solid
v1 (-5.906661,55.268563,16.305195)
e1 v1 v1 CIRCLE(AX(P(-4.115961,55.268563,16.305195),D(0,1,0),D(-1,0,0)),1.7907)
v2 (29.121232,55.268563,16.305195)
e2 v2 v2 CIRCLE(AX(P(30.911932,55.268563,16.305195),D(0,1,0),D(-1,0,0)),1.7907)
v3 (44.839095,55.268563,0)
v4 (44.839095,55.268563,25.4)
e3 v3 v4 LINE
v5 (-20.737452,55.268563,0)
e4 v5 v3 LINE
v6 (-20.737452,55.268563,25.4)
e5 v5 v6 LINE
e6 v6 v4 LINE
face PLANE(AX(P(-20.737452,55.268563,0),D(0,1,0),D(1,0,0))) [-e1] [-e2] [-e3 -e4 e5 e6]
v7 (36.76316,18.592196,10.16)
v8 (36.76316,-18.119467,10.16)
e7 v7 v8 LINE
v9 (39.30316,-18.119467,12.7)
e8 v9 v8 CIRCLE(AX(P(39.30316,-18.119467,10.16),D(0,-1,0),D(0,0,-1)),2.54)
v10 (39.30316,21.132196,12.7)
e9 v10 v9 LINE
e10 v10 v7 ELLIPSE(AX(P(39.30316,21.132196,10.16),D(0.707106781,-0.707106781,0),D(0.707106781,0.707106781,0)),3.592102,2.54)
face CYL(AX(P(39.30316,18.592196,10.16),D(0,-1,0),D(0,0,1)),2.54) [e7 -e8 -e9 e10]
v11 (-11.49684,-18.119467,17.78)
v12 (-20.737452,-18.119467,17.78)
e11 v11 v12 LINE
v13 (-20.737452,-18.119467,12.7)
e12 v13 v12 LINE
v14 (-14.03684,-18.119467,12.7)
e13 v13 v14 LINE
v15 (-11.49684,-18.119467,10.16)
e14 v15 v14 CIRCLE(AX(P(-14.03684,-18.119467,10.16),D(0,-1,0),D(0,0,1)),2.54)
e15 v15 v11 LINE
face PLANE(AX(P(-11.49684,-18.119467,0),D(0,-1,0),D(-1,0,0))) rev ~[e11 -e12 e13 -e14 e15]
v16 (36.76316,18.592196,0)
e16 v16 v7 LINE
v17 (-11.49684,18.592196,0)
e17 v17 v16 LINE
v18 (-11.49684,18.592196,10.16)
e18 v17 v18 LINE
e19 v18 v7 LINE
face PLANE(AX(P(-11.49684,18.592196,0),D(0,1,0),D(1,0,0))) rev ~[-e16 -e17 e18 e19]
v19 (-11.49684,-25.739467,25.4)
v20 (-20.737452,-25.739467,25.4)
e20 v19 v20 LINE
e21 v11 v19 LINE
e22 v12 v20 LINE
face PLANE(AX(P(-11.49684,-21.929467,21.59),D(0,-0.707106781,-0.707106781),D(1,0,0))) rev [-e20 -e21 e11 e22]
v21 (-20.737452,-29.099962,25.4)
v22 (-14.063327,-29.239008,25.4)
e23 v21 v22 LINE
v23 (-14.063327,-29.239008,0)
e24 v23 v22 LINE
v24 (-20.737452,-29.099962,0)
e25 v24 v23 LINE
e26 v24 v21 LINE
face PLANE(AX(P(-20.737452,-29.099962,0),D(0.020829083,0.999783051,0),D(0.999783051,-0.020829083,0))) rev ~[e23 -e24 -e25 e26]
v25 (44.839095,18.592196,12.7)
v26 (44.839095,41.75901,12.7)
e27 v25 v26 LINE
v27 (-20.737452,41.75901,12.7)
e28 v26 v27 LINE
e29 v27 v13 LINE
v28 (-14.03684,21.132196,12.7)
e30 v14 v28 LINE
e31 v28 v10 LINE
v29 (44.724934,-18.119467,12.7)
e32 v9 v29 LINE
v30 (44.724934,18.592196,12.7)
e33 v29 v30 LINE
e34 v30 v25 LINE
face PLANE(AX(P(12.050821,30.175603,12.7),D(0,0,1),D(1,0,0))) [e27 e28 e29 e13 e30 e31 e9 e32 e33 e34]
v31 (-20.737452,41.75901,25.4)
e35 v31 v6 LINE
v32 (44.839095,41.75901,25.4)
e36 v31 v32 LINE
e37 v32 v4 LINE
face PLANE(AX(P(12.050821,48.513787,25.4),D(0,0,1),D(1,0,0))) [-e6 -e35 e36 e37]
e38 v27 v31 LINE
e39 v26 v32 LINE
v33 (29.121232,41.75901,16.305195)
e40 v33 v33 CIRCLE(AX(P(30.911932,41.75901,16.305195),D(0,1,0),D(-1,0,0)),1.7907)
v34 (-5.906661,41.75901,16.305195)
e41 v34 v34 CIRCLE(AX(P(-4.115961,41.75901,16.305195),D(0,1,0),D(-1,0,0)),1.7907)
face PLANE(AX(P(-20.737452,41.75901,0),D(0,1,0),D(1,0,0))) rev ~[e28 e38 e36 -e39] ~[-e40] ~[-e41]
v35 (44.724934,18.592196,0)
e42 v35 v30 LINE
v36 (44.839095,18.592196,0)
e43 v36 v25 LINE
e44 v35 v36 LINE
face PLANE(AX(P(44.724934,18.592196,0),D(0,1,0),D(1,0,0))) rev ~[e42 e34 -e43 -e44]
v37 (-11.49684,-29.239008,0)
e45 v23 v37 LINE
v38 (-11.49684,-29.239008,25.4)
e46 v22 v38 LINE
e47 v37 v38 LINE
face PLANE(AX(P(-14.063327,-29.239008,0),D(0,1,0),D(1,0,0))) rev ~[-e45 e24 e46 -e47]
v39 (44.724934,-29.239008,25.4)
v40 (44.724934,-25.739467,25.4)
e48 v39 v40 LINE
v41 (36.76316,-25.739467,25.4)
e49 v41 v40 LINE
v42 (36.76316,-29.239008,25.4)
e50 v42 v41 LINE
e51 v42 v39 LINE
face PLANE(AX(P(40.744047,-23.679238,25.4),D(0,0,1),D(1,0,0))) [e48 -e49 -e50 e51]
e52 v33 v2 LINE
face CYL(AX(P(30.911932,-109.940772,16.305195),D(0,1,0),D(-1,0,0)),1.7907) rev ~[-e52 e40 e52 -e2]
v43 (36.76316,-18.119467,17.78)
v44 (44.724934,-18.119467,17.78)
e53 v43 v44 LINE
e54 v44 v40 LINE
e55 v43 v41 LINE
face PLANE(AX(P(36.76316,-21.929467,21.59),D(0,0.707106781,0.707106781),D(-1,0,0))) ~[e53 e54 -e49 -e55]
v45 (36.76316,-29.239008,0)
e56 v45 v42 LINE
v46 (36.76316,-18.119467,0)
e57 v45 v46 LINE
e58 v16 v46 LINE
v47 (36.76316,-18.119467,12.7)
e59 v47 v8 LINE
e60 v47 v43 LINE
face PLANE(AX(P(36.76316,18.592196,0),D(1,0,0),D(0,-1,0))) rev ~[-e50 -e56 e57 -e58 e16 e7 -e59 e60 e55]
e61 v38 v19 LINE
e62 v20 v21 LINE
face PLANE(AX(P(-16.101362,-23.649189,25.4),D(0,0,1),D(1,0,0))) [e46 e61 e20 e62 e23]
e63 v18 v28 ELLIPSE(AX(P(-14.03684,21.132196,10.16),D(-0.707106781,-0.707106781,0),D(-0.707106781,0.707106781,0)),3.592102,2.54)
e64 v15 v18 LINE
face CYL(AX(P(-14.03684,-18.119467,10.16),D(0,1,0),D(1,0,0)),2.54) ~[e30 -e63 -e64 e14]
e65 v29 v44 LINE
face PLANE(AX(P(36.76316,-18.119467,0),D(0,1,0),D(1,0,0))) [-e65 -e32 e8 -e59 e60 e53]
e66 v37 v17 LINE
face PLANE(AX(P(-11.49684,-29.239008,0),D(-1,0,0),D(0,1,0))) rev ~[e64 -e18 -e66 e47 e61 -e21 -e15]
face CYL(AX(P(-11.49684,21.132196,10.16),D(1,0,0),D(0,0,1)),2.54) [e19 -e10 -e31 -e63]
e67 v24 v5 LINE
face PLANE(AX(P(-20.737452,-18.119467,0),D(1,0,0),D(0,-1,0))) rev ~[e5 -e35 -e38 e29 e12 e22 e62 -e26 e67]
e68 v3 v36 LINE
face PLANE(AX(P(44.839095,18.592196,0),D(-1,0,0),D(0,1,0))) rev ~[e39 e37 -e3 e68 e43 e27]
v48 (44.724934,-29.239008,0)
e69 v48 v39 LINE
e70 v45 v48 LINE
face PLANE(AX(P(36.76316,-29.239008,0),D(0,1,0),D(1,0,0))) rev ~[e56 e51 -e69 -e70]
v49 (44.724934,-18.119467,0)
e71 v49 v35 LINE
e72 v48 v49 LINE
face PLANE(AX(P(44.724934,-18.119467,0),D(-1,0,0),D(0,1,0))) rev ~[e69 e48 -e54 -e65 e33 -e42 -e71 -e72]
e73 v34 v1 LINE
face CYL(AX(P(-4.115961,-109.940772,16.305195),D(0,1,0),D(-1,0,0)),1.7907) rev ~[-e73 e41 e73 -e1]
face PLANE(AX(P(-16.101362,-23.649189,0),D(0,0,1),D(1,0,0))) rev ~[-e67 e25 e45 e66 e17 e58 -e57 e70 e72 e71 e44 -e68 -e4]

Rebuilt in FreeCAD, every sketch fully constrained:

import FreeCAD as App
import Part
import Sketcher
Q = App.Units.Quantity


def edges_at(feature, points):
    """Names of the edges that pass closest to the given points."""
    edges = feature.Shape.Edges
    near = lambda p: min(range(len(edges)), key=lambda i: edges[i].distToShape(Part.Vertex(*p))[0])
    return sorted({f"Edge{near(p) + 1}" for p in points})

doc = App.newDocument("Part")
body = doc.addObject("PartDesign::Body", "Body")

# Sketch on XY plane
sketch1 = doc.addObject("Sketcher::SketchObject", "Sketch")
body.addObject(sketch1)
sketch1.AttachmentSupport = (doc.XY_Plane, [""])
sketch1.MapMode = "FlatFace"
sketch1.addGeometry([
    Part.LineSegment(App.Vector(44.84, 18.59, 0), App.Vector(44.84, 41.76, 0)),  # 0
    Part.LineSegment(App.Vector(44.84, 41.76, 0), App.Vector(-20.74, 41.76, 0)),  # 1
    Part.LineSegment(App.Vector(-20.74, 41.76, 0), App.Vector(-20.74, -18.12, 0)),  # 2
    Part.LineSegment(App.Vector(-20.74, -18.12, 0), App.Vector(-11.5, -18.12, 0)),  # 3
    Part.LineSegment(App.Vector(-11.5, -18.12, 0), App.Vector(-11.5, 18.59, 0)),  # 4
    Part.LineSegment(App.Vector(-11.5, 18.59, 0), App.Vector(36.76, 18.59, 0)),  # 5
    Part.LineSegment(App.Vector(36.76, 18.59, 0), App.Vector(36.76, -18.12, 0)),  # 6
    Part.LineSegment(App.Vector(36.76, -18.12, 0), App.Vector(44.72, -18.12, 0)),  # 7
    Part.LineSegment(App.Vector(44.72, -18.12, 0), App.Vector(44.72, 18.59, 0)),  # 8
    Part.LineSegment(App.Vector(44.72, 18.59, 0), App.Vector(44.84, 18.59, 0)),  # 9
], False)
sketch1.addConstraint([
    Sketcher.Constraint("Coincident", 0, 2, 1, 1),
    Sketcher.Constraint("Coincident", 1, 2, 2, 1),
    Sketcher.Constraint("Coincident", 2, 2, 3, 1),
    Sketcher.Constraint("Coincident", 3, 2, 4, 1),
    Sketcher.Constraint("Coincident", 4, 2, 5, 1),
    Sketcher.Constraint("Coincident", 5, 2, 6, 1),
    Sketcher.Constraint("Coincident", 6, 2, 7, 1),
    Sketcher.Constraint("Coincident", 7, 2, 8, 1),
    Sketcher.Constraint("Coincident", 8, 2, 9, 1),
    Sketcher.Constraint("Coincident", 9, 2, 0, 1),
    Sketcher.Constraint("Vertical", 0),
    Sketcher.Constraint("Horizontal", 1),
    Sketcher.Constraint("Vertical", 2),
    Sketcher.Constraint("Horizontal", 3),
    Sketcher.Constraint("Vertical", 4),
    Sketcher.Constraint("Horizontal", 5),
    Sketcher.Constraint("Vertical", 6),
    Sketcher.Constraint("Horizontal", 7),
    Sketcher.Constraint("Vertical", 8),
    Sketcher.Constraint("Horizontal", 9),
    Sketcher.Constraint("Horizontal", 3, 2, 6, 2),
    Sketcher.Constraint("Horizontal", 5, 2, 8, 2),
    Sketcher.Constraint("DistanceX", 5, 1, 5, 2, Q("1.9 in")),
    Sketcher.Constraint("DistanceX", 9, 1, 9, 2, Q("0.114161 mm")),
    Sketcher.Constraint("DistanceX", 1, 2, 1, 1, Q("65.576548 mm")),
    Sketcher.Constraint("DistanceX", 3, 1, 3, 2, Q("9.240612 mm")),
    Sketcher.Constraint("DistanceY", 0, 1, 0, 2, Q("23.166815 mm")),
    Sketcher.Constraint("DistanceY", 2, 2, 2, 1, Q("59.878478 mm")),
    Sketcher.Constraint("DistanceY", -1, 1, 0, 2, Q("41.75901 mm")),
    Sketcher.Constraint("DistanceX", 3, 2, -1, 1, Q("11.49684 mm")),
])
pad1 = doc.addObject("PartDesign::Pad", "Pad")
body.addObject(pad1)
pad1.Profile = sketch1
pad1.Length = Q("0.5 in")

# Sketch on XY plane
sketch2 = doc.addObject("Sketcher::SketchObject", "Sketch001")
body.addObject(sketch2)
sketch2.AttachmentSupport = (doc.XY_Plane, [""])
sketch2.MapMode = "FlatFace"
sketch2.addGeometry([
    Part.LineSegment(App.Vector(-11.5, -29.2, 0), App.Vector(-11.5, -18.1, 0)),  # 0
    Part.LineSegment(App.Vector(-11.5, -18.1, 0), App.Vector(-20.7, -18.1, 0)),  # 1
    Part.LineSegment(App.Vector(-20.7, -18.1, 0), App.Vector(-20.7, -29.1, 0)),  # 2
    Part.LineSegment(App.Vector(-20.7, -29.1, 0), App.Vector(-14.1, -29.2, 0)),  # 3
    Part.LineSegment(App.Vector(-14.1, -29.2, 0), App.Vector(-11.5, -29.2, 0)),  # 4
    Part.LineSegment(App.Vector(36.8, -18.1, 0), App.Vector(36.8, -29.2, 0)),  # 5
    Part.LineSegment(App.Vector(36.8, -29.2, 0), App.Vector(44.7, -29.2, 0)),  # 6
    Part.LineSegment(App.Vector(44.7, -29.2, 0), App.Vector(44.7, -18.1, 0)),  # 7
    Part.LineSegment(App.Vector(44.7, -18.1, 0), App.Vector(36.8, -18.1, 0)),  # 8
    Part.LineSegment(App.Vector(-20.7, 55.3, 0), App.Vector(-20.7, 41.8, 0)),  # 9
    Part.LineSegment(App.Vector(-20.7, 41.8, 0), App.Vector(44.8, 41.8, 0)),  # 10
    Part.LineSegment(App.Vector(44.8, 41.8, 0), App.Vector(44.8, 55.3, 0)),  # 11
    Part.LineSegment(App.Vector(44.8, 55.3, 0), App.Vector(-20.7, 55.3, 0)),  # 12
], False)
sketch2.addConstraint([
    Sketcher.Constraint("Coincident", 0, 2, 1, 1),
    Sketcher.Constraint("Coincident", 1, 2, 2, 1),
    Sketcher.Constraint("Coincident", 2, 2, 3, 1),
    Sketcher.Constraint("Coincident", 3, 2, 4, 1),
    Sketcher.Constraint("Coincident", 4, 2, 0, 1),
    Sketcher.Constraint("Coincident", 5, 2, 6, 1),
    Sketcher.Constraint("Coincident", 6, 2, 7, 1),
    Sketcher.Constraint("Coincident", 7, 2, 8, 1),
    Sketcher.Constraint("Coincident", 8, 2, 5, 1),
    Sketcher.Constraint("Coincident", 9, 2, 10, 1),
    Sketcher.Constraint("Coincident", 10, 2, 11, 1),
    Sketcher.Constraint("Coincident", 11, 2, 12, 1),
    Sketcher.Constraint("Coincident", 12, 2, 9, 1),
    Sketcher.Constraint("Vertical", 0),
    Sketcher.Constraint("Horizontal", 1),
    Sketcher.Constraint("Vertical", 2),
    Sketcher.Constraint("Horizontal", 4),
    Sketcher.Constraint("Vertical", 5),
    Sketcher.Constraint("Horizontal", 6),
    Sketcher.Constraint("Vertical", 7),
    Sketcher.Constraint("Horizontal", 8),
    Sketcher.Constraint("Vertical", 9),
    Sketcher.Constraint("Horizontal", 10),
    Sketcher.Constraint("Vertical", 11),
    Sketcher.Constraint("Horizontal", 12),
    Sketcher.Constraint("Horizontal", 4, 2, 5, 2),
    Sketcher.Constraint("Horizontal", 1, 2, 7, 2),
    Sketcher.Constraint("Vertical", 2, 2, 9, 2),
    Sketcher.Constraint("DistanceX", 4, 2, 5, 2, Q("1.9 in")),
    Sketcher.Constraint("DistanceY", 0, 1, 0, 2, Q("11.119541 mm")),
    Sketcher.Constraint("DistanceX", 1, 2, 1, 1, Q("9.240612 mm")),
    Sketcher.Constraint("DistanceX", 4, 1, 4, 2, Q("2.566486 mm")),
    Sketcher.Constraint("DistanceX", 6, 1, 6, 2, Q("7.961775 mm")),
    Sketcher.Constraint("DistanceX", 10, 1, 10, 2, Q("65.576548 mm")),
    Sketcher.Constraint("DistanceY", 2, 2, 2, 1, Q("10.980495 mm")),
    Sketcher.Constraint("DistanceY", 9, 2, 9, 1, Q("13.509553 mm")),
    Sketcher.Constraint("DistanceX", 0, 2, -1, 1, Q("11.49684 mm")),
    Sketcher.Constraint("DistanceY", 3, 2, -1, 1, Q("29.239008 mm")),
    Sketcher.Constraint("DistanceY", -1, 1, 9, 2, Q("41.75901 mm")),
])
pad2 = doc.addObject("PartDesign::Pad", "Pad001")
body.addObject(pad2)
pad2.Profile = sketch2
pad2.Length = Q("1 in")
doc.recompute()

chamfer = doc.addObject("PartDesign::Chamfer", "Chamfer")
body.addObject(chamfer)
chamfer.Base = (pad2, edges_at(pad2, [(-16.117, -18.119, 25.4), (40.744, -18.119, 25.4)]))
chamfer.Size = Q("0.3 in")

# Sketch on XZ plane
sketch3 = doc.addObject("Sketcher::SketchObject", "Sketch002")
body.addObject(sketch3)
sketch3.AttachmentSupport = (doc.XZ_Plane, [""])
sketch3.MapMode = "FlatFace"
sketch3.addGeometry([
    Part.Circle(App.Vector(30.9, 16.3, 0), App.Vector(0, 0, 1), 1.8),
    Part.Circle(App.Vector(-4.1, 16.3, 0), App.Vector(0, 0, 1), 1.8),
], False)
sketch3.addConstraint([
    Sketcher.Constraint("Equal", 0, 1),
    Sketcher.Constraint("Horizontal", 0, 3, 1, 3),
    Sketcher.Constraint("Diameter", 0, Q("0.141 in")),
    Sketcher.Constraint("DistanceX", -1, 1, 0, 3, Q("30.911932 mm")),
    Sketcher.Constraint("DistanceX", 1, 3, -1, 1, Q("4.115961 mm")),
    Sketcher.Constraint("DistanceY", -1, 1, 0, 3, Q("16.305195 mm")),
])
doc.recompute()
hole = doc.addObject("PartDesign::Hole", "Hole")
body.addObject(hole)
hole.Profile = sketch3
hole.ThreadType = "None"
hole.Diameter = Q("0.141 in")
hole.DepthType = "ThroughAll"
doc.recompute()

fillet = doc.addObject("PartDesign::Fillet", "Fillet")
body.addObject(fillet)
fillet.Base = (hole, edges_at(hole, [(-11.497, 0.236, 12.7), (12.633, 18.592, 12.7), (36.763, 0.236, 12.7)]))
fillet.Radius = Q("0.1 in")

doc.recompute()
